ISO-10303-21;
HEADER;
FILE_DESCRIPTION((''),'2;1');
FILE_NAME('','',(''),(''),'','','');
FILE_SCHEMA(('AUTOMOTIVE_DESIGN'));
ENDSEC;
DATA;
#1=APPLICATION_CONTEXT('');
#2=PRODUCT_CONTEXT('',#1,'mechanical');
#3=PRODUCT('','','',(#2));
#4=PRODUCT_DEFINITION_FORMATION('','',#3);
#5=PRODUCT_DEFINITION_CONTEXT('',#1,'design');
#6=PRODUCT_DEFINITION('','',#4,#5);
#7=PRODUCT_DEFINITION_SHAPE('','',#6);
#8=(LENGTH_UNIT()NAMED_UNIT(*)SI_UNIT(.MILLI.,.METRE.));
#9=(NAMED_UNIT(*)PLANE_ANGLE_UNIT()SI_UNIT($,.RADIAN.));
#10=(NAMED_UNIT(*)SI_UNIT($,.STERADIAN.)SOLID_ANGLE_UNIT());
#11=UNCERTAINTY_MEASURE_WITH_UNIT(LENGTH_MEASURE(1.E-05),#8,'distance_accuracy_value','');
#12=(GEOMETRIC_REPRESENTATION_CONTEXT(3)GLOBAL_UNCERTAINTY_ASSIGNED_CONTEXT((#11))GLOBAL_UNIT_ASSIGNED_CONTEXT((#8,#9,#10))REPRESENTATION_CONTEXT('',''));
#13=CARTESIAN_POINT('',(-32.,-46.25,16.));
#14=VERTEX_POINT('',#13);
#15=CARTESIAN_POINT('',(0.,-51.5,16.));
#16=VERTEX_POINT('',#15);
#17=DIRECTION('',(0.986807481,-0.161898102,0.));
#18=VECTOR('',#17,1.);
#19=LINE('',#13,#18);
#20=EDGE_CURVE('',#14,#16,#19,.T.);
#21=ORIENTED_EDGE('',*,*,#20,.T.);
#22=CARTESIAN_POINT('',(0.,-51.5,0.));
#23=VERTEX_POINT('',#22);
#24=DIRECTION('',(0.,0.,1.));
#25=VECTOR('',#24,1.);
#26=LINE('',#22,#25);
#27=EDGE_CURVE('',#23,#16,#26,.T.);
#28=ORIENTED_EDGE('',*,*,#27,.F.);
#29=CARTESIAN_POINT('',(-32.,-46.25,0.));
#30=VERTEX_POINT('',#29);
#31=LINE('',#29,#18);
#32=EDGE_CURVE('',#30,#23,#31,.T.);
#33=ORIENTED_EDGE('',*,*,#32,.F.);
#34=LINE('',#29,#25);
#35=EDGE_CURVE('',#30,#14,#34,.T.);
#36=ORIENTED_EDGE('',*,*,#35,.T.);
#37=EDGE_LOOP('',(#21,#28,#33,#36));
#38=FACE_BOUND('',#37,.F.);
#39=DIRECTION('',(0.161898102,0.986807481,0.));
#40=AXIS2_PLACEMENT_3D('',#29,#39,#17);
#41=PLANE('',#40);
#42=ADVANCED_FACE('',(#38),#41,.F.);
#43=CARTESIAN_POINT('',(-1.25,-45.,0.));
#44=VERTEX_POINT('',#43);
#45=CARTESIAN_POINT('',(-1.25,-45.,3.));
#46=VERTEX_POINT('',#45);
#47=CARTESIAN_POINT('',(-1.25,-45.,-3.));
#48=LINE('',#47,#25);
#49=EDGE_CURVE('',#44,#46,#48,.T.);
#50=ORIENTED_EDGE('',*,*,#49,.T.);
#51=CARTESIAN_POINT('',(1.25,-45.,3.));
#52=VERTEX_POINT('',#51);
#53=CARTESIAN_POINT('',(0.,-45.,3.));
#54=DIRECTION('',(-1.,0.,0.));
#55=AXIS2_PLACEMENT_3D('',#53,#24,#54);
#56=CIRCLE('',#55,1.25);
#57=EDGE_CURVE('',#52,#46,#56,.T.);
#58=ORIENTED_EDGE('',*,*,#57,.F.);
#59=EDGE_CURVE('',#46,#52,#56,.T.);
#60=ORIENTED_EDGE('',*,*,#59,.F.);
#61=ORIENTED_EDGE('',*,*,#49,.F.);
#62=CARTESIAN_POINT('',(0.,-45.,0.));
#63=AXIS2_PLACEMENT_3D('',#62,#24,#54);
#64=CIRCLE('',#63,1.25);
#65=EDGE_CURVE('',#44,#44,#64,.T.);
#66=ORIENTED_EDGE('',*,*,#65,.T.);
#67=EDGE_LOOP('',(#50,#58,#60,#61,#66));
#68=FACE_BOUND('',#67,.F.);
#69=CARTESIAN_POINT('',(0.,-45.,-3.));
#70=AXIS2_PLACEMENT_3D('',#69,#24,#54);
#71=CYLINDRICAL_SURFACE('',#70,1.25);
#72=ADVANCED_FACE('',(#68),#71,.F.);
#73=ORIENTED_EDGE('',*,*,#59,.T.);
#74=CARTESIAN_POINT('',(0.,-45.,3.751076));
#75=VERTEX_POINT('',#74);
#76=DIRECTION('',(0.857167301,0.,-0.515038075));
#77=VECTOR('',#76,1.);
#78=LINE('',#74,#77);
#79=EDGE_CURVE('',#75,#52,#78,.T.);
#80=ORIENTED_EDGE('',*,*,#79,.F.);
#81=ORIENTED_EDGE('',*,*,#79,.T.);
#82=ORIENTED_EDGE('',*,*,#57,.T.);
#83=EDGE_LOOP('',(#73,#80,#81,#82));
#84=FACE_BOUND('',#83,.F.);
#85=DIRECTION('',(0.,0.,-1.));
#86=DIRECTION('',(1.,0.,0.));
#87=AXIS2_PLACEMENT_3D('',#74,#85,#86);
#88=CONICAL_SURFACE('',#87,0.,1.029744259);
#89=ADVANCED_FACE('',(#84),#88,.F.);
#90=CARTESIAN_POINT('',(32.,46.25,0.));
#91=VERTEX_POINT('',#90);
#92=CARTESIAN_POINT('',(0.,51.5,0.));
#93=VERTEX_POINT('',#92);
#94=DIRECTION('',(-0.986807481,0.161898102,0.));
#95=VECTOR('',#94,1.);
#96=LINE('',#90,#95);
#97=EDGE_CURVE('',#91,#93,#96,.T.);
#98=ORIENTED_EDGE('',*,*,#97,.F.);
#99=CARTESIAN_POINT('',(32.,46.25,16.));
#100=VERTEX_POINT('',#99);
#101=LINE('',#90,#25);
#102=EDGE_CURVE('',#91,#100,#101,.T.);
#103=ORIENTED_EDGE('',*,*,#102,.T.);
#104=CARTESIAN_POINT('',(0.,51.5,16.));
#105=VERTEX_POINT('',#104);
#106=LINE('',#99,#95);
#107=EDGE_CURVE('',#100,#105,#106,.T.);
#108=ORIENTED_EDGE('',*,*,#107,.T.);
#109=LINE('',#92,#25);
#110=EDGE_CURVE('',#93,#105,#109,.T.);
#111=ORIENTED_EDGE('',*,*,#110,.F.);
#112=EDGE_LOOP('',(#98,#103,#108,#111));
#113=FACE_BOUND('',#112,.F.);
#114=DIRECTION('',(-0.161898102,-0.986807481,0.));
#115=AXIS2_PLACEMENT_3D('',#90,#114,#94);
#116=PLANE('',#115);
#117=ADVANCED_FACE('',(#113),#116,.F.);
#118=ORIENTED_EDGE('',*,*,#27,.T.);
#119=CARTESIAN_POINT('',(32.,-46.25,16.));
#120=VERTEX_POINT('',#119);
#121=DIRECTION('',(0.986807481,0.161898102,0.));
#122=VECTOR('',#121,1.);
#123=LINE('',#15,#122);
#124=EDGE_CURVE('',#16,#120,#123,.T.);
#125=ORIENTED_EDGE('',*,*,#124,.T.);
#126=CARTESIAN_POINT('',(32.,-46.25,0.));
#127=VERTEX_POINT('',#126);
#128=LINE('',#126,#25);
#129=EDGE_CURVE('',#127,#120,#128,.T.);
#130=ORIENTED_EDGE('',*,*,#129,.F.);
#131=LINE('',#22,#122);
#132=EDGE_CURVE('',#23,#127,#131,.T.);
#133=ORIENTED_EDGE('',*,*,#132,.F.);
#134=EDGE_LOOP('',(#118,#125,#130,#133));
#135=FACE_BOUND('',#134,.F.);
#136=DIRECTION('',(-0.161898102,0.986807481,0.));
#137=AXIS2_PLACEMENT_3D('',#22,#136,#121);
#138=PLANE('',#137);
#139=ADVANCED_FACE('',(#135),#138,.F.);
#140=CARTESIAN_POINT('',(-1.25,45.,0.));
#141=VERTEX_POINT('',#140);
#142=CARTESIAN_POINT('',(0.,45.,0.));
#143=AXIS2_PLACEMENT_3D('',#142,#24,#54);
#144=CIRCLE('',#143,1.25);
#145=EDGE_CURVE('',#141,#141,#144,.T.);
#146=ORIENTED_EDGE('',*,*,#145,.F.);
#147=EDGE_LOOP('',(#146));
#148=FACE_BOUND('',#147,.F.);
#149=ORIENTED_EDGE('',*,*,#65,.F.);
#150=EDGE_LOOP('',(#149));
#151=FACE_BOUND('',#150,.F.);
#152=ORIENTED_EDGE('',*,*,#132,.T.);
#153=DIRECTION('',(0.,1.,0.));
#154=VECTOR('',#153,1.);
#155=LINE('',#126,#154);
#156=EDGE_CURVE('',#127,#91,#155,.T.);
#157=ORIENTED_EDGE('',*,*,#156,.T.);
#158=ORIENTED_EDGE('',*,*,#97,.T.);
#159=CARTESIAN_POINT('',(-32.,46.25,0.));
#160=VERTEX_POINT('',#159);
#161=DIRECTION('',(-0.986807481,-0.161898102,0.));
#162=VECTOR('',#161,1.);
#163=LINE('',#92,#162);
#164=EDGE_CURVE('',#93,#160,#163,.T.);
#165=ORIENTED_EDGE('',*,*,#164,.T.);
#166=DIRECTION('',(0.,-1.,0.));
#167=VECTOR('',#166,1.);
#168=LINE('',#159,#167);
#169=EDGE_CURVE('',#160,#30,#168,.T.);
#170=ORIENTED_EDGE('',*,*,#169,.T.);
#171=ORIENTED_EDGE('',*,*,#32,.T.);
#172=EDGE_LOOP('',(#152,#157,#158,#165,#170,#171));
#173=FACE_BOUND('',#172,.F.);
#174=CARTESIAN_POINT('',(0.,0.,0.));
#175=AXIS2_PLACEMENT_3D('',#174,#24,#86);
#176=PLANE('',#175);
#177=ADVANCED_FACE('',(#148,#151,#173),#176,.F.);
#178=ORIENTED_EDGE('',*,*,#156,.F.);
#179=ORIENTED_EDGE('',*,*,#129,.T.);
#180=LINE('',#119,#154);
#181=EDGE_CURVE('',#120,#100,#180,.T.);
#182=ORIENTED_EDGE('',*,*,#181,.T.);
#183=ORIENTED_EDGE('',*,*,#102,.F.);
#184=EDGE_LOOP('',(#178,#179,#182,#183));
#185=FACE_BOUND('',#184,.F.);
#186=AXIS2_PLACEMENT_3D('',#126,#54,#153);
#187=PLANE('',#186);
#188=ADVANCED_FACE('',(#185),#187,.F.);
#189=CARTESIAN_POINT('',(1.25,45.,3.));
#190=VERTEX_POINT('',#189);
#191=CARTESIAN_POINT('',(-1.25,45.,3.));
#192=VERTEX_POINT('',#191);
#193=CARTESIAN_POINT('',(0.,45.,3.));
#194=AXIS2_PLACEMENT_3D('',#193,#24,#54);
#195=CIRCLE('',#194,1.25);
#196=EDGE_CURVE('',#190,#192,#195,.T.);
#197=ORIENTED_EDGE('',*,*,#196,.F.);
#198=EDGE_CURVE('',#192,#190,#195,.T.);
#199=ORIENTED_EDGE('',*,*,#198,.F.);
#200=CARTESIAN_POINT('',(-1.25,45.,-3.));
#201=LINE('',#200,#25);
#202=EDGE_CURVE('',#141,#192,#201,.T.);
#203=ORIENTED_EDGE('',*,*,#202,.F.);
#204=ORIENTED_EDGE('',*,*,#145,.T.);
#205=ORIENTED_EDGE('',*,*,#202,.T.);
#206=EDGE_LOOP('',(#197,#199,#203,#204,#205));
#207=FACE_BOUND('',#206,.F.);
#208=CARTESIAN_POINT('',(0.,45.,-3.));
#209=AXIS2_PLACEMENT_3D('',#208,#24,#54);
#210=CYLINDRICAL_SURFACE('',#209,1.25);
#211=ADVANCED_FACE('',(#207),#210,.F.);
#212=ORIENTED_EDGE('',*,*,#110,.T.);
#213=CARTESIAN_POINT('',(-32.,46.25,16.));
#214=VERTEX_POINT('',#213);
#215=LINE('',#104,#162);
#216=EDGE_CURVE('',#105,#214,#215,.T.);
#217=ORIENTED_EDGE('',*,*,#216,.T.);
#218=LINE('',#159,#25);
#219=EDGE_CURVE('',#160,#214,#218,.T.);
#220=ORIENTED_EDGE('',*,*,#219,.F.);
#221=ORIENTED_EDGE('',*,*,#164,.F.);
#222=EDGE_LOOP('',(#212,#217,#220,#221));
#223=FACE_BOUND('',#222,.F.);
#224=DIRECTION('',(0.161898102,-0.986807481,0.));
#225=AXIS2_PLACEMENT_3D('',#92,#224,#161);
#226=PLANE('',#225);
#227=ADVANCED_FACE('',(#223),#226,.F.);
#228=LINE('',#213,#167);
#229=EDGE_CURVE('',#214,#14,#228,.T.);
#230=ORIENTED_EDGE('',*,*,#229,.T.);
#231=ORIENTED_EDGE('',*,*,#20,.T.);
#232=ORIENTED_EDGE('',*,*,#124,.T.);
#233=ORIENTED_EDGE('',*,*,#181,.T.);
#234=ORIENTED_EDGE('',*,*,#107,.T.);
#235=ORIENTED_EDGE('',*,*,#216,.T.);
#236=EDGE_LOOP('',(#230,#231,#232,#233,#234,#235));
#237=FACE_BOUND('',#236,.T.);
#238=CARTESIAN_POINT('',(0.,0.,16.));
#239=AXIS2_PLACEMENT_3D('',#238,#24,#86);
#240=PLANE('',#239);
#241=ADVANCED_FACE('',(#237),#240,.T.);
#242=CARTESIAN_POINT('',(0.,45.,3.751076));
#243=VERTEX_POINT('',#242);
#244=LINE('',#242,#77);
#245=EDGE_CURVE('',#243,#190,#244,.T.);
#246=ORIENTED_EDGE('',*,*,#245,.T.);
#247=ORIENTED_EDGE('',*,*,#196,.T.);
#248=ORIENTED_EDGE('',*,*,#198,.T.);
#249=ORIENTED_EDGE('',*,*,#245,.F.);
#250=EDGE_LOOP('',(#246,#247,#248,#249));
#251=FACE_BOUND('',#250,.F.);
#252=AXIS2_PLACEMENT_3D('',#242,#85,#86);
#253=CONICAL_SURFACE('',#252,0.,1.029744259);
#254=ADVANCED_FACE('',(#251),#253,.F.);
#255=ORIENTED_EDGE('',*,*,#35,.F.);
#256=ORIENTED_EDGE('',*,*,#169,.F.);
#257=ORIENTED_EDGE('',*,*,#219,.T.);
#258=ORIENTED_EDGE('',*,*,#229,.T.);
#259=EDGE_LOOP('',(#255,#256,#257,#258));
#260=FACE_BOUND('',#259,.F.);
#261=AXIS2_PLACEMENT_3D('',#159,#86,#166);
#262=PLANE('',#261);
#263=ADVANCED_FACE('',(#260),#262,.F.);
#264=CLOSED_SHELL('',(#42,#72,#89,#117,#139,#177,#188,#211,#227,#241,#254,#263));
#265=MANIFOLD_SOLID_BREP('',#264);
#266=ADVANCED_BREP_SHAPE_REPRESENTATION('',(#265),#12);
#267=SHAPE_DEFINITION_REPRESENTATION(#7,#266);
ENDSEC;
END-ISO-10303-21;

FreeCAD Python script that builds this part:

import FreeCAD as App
import Part
import Sketcher
from FreeCAD import Vector

doc = App.newDocument("Part")
body = doc.addObject("PartDesign::Body", "Body")

# Sketch on XY plane
sketch1 = body.newObject("Sketcher::SketchObject", "Sketch")
sketch1.AttachmentSupport = (doc.getObject("XY_Plane"), [""])
sketch1.MapMode = "FlatFace"
sketch1.addGeometry([
    Part.LineSegment(Vector(32, 46, 0), Vector(0, 52, 0)),  # 0
    Part.LineSegment(Vector(0, 52, 0), Vector(-32, 46, 0)),  # 1
    Part.LineSegment(Vector(-32, 46, 0), Vector(-32, -46, 0)),  # 2
    Part.LineSegment(Vector(-32, -46, 0), Vector(0, -52, 0)),  # 3
    Part.LineSegment(Vector(0, -52, 0), Vector(32, -46, 0)),  # 4
    Part.LineSegment(Vector(32, -46, 0), Vector(32, 46, 0)),  # 5
], False)
sketch1.addConstraint([
    Sketcher.Constraint("Coincident", 0, 2, 1, 1),
    Sketcher.Constraint("Coincident", 1, 2, 2, 1),
    Sketcher.Constraint("Coincident", 2, 2, 3, 1),
    Sketcher.Constraint("Coincident", 3, 2, 4, 1),
    Sketcher.Constraint("Coincident", 4, 2, 5, 1),
    Sketcher.Constraint("Coincident", 5, 2, 0, 1),
    Sketcher.Constraint("Vertical", 2),
    Sketcher.Constraint("Vertical", 5),
    Sketcher.Constraint("Symmetric", 0, 2, 3, 2, -1, 1),
    Sketcher.Constraint("Symmetric", 1, 2, 4, 2, -1, 1),
    Sketcher.Constraint("PointOnObject", 0, 2, -2),
    Sketcher.Constraint("Parallel", 0, 3),
    Sketcher.Constraint("Horizontal", 2, 2, 4, 2),
    Sketcher.Constraint("DistanceY", 2, 2, 2, 1, 92.5),
    Sketcher.Constraint("DistanceX", 1, 2, -1, 1, 32.0),
    Sketcher.Constraint("DistanceY", 3, 2, 0, 2, 103.0),
])
pad1 = body.newObject("PartDesign::Pad", "Pad")
pad1.Profile = sketch1
pad1.Length = 16

# Sketch on XY plane
sketch2 = body.newObject("Sketcher::SketchObject", "Sketch001")
sketch2.AttachmentSupport = (doc.getObject("XY_Plane"), [""])
sketch2.MapMode = "FlatFace"
sketch2.addGeometry([
    Part.Circle(Vector(0, -45, 0), Vector(0, 0, 1), 1.2),
    Part.Circle(Vector(0, 45, 0), Vector(0, 0, 1), 1.2),
], False)
sketch2.addConstraint([
    Sketcher.Constraint("Equal", 0, 1),
    Sketcher.Constraint("Symmetric", 0, 3, 1, 3, -1, 1),
    Sketcher.Constraint("PointOnObject", 0, 3, -2),
    Sketcher.Constraint("Diameter", 0, 2.5),
    Sketcher.Constraint("DistanceY", 0, 3, -1, 1, 45.0),
])
doc.recompute()
hole = body.newObject("PartDesign::Hole", "Hole")
hole.Profile = sketch2
hole.ThreadType = "None"
hole.Diameter = 2.5
hole.DepthType = "Dimension"
hole.Depth = 3
hole.DrillPoint = "Angled"
hole.DrillPointAngle = 118
hole.Reversed = True

doc.recompute()
